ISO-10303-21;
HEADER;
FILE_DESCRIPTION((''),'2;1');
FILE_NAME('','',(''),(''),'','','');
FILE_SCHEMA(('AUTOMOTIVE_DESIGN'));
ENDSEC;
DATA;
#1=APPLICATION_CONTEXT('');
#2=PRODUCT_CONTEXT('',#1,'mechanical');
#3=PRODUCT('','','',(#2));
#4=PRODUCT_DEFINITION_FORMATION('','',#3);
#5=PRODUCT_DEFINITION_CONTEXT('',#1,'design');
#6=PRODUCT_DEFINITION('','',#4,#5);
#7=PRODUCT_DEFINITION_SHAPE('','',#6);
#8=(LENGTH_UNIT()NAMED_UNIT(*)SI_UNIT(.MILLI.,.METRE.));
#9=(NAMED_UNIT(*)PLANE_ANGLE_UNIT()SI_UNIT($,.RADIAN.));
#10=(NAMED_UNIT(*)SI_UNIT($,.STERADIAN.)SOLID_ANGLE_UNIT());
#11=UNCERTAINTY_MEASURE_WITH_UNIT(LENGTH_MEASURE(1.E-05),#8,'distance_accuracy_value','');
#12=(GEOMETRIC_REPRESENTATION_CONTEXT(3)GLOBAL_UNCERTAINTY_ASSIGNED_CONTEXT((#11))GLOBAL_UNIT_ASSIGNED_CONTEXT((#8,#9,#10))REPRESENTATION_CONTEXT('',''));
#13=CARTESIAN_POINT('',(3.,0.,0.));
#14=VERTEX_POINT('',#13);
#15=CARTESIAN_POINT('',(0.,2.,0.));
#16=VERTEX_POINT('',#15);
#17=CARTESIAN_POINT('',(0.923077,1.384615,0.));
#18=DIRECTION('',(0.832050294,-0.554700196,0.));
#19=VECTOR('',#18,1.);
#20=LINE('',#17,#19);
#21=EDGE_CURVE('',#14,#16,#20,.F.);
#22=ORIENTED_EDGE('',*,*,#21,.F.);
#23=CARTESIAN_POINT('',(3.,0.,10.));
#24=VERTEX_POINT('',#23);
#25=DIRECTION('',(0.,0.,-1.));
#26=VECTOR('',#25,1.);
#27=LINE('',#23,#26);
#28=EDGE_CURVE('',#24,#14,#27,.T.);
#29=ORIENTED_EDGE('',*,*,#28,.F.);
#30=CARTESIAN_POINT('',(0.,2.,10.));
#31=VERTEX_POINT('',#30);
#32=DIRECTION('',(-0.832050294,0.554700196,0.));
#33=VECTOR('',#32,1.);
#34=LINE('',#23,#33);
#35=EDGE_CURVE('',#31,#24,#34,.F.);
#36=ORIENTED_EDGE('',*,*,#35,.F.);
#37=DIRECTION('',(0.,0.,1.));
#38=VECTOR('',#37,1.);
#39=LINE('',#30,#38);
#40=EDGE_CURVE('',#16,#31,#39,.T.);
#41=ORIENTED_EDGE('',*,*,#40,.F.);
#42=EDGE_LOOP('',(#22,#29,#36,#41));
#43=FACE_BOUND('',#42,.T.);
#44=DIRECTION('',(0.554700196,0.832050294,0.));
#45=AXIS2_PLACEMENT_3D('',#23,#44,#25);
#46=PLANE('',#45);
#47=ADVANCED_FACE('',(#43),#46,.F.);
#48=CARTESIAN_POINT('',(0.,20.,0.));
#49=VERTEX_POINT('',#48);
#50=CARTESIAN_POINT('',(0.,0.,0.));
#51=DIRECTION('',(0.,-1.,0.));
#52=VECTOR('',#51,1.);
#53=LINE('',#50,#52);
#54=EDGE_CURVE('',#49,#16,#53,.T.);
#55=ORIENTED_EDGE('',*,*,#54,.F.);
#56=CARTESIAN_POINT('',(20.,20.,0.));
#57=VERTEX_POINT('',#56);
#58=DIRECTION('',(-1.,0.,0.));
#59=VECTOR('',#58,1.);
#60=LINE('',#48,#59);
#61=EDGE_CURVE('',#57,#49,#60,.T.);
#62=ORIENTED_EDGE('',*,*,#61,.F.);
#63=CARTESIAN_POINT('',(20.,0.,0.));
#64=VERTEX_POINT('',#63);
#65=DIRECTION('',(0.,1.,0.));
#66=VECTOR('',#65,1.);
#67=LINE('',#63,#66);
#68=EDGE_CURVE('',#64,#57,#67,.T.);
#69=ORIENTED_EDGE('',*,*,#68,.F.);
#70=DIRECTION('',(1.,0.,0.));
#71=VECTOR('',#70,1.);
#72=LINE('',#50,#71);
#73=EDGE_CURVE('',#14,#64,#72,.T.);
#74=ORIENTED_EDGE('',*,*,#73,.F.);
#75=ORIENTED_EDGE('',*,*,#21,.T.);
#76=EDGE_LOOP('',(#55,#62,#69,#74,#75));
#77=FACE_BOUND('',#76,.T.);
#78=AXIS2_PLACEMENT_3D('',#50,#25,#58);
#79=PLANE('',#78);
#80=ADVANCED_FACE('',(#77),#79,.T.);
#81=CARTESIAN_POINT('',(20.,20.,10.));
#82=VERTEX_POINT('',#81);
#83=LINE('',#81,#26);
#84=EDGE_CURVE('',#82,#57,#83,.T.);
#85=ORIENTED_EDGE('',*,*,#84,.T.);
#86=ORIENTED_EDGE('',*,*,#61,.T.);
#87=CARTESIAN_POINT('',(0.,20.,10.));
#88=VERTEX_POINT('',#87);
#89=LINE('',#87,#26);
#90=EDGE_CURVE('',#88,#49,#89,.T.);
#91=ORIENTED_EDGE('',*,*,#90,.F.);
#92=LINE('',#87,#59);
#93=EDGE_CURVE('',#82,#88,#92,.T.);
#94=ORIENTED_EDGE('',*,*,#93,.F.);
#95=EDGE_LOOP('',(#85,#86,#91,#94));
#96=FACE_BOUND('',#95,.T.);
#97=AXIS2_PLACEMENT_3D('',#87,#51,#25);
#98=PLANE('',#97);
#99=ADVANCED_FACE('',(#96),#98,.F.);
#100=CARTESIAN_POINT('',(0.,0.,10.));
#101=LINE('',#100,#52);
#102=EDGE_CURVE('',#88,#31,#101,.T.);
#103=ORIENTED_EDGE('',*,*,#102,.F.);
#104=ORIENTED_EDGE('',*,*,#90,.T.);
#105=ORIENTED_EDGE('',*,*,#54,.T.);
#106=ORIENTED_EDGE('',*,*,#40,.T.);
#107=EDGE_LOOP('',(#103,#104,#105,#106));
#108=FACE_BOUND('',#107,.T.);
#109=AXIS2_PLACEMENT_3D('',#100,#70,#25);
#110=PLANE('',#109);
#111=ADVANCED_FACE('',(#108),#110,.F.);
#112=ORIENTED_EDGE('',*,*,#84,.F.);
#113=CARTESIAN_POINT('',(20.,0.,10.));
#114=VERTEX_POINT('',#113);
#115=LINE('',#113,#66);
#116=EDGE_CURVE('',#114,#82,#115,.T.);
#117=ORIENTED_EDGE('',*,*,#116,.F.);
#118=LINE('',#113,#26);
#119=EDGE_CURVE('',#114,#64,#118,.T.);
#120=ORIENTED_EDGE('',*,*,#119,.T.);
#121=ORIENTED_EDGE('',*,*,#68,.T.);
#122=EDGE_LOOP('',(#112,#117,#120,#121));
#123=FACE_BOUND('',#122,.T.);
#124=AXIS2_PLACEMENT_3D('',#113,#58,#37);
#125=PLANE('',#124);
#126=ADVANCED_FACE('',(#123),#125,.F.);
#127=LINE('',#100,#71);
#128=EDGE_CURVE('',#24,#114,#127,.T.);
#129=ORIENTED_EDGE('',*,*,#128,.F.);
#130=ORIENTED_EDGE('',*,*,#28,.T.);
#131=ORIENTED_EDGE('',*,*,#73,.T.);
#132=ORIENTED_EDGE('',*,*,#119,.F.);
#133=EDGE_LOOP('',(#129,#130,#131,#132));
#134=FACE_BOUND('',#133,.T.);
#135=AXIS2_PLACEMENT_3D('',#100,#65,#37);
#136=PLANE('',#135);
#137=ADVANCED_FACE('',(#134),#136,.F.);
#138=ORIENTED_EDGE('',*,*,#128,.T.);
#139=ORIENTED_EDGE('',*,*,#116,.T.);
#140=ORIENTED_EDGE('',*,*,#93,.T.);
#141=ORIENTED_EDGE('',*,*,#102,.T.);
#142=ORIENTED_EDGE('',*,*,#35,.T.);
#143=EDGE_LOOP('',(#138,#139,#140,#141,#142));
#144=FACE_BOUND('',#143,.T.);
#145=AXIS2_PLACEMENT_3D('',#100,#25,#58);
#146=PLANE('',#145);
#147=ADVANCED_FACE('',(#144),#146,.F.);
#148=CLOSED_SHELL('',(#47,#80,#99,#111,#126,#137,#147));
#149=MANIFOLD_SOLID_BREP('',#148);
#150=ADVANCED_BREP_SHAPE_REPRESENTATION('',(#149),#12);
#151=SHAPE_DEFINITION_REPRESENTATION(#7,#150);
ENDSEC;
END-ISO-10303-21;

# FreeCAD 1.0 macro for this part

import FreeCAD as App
import Part
import Sketcher
from FreeCAD import Vector


def edges_at(feature, points):
    """Names of the edges that pass closest to the given points."""
    edges = feature.Shape.Edges
    near = lambda p: min(range(len(edges)), key=lambda i: edges[i].distToShape(Part.Vertex(*p))[0])
    return sorted({f"Edge{near(p) + 1}" for p in points})


def add_polygon(sketch, points):
    """Adds a closed chain of lines whose ends are joined by coincident constraints."""
    first, n = sketch.GeometryCount, len(points)
    for a, b in zip(points, points[1:] + points[:1]):
        sketch.addGeometry(Part.LineSegment(App.Vector(*a, 0), App.Vector(*b, 0)), False)
    for i in range(n):
        sketch.addConstraint(Sketcher.Constraint("Coincident", first + i, 2, first + (i + 1) % n, 1))

doc = App.newDocument("Part")
body = doc.addObject("PartDesign::Body", "Body")

sketch1 = body.newObject("Sketcher::SketchObject", "Sketch")
sketch1.AttachmentSupport = (doc.getObject("XY_Plane"), [""])
sketch1.MapMode = "FlatFace"
add_polygon(sketch1, [(0, 20), (0, 0), (20, 0), (20, 20)])
sketch1.addConstraint([
    Sketcher.Constraint("Vertical", 0),
    Sketcher.Constraint("Horizontal", 1),
    Sketcher.Constraint("Vertical", 2),
    Sketcher.Constraint("Horizontal", 3),
    Sketcher.Constraint("Coincident", 0, 2, -1, 1),
    Sketcher.Constraint("Equal", 3, 0),
    Sketcher.Constraint("DistanceX", 1, 1, 1, 2, 20.0),
])
pad1 = body.newObject("PartDesign::Pad", "Pad")
pad1.Profile = sketch1
pad1.Length = 10
doc.recompute()

chamfer = body.newObject("PartDesign::Chamfer", "Chamfer")
chamfer.Base = (pad1, edges_at(pad1, [(0, 0, 5)]))
chamfer.ChamferType = "Two distances"
chamfer.Size = 2
chamfer.Size2 = 3

doc.recompute()
